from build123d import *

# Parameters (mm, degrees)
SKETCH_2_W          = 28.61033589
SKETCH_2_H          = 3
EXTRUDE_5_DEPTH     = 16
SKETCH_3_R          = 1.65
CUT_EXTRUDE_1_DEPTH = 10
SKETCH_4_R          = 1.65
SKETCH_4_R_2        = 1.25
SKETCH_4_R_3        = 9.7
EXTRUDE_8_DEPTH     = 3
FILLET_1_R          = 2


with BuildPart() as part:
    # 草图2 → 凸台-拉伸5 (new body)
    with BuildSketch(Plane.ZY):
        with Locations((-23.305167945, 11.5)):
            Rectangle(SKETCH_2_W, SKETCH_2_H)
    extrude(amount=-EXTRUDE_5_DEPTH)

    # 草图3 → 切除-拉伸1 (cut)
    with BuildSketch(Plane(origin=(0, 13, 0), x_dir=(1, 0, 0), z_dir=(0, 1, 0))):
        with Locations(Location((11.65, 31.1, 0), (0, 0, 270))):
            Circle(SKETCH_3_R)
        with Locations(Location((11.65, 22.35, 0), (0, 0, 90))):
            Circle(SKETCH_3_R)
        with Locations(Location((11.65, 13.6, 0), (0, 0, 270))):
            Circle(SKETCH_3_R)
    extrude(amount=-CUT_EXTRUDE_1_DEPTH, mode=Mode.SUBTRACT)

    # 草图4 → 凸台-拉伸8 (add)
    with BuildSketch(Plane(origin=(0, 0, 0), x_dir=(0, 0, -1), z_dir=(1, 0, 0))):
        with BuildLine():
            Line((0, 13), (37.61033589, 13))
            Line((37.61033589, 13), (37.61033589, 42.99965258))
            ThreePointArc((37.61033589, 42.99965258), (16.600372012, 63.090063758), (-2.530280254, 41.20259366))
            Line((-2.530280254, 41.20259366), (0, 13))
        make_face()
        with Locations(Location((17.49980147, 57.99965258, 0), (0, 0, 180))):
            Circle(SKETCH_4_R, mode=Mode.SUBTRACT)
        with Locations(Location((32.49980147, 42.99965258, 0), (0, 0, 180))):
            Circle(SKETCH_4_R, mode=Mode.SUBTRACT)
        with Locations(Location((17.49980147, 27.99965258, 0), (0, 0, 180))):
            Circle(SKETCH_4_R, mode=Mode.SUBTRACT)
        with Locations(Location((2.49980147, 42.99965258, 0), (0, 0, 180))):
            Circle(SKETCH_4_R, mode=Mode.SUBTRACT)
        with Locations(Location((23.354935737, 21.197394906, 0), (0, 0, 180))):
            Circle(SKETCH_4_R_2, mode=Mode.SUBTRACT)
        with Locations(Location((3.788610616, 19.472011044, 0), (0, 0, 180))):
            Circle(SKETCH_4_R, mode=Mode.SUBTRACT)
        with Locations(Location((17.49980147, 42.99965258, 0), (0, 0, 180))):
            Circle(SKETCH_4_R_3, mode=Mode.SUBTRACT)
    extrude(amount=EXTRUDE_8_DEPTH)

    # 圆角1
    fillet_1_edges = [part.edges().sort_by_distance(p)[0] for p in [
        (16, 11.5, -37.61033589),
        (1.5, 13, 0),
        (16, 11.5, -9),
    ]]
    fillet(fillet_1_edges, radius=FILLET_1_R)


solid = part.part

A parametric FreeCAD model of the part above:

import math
import FreeCAD as App
import Part
import Sketcher

V = App.Vector


def edges_at(feature, points):
    """Names of the edges that pass closest to the given points."""
    edges = feature.Shape.Edges
    near = lambda p: min(range(len(edges)), key=lambda i: edges[i].distToShape(Part.Vertex(*p))[0])
    return sorted({f"Edge{near(p) + 1}" for p in points})

doc = App.newDocument("Part")
body = doc.addObject("PartDesign::Body", "Body")

# Sketch on YZ plane
sketch1 = body.newObject("Sketcher::SketchObject", "Sketch")
sketch1.AttachmentSupport = (doc.getObject("YZ_Plane"), [""])
sketch1.MapMode = "FlatFace"
sketch1.addGeometry(Part.LineSegment(V(13, -37.610336, 0), V(10, -37.610336, 0)), False)
sketch1.addGeometry(Part.LineSegment(V(10, -37.610336, 0), V(10, -9, 0)), False)
sketch1.addGeometry(Part.LineSegment(V(10, -9, 0), V(13, -9, 0)), False)
sketch1.addGeometry(Part.LineSegment(V(13, -9, 0), V(13, -37.610336, 0)), False)
sketch1.addConstraint(Sketcher.Constraint("Coincident", 0, 2, 1, 1))
sketch1.addConstraint(Sketcher.Constraint("Coincident", 1, 2, 2, 1))
sketch1.addConstraint(Sketcher.Constraint("Coincident", 2, 2, 3, 1))
sketch1.addConstraint(Sketcher.Constraint("Coincident", 3, 2, 0, 1))
sketch1.addConstraint(Sketcher.Constraint("Horizontal", 0))
sketch1.addConstraint(Sketcher.Constraint("Vertical", 1))
sketch1.addConstraint(Sketcher.Constraint("Horizontal", 2))
sketch1.addConstraint(Sketcher.Constraint("Vertical", 3))
sketch1.addConstraint(Sketcher.Constraint("DistanceX", 0, 2, 0, 1, 3.0))
sketch1.addConstraint(Sketcher.Constraint("DistanceX", -1, 1, 0, 2, 10.0))
sketch1.addConstraint(Sketcher.Constraint("DistanceY", 1, 2, -1, 1, 9.0))
sketch1.addConstraint(Sketcher.Constraint("DistanceY", 1, 1, 1, 2, 28.610336))
pad1 = body.newObject("PartDesign::Pad", "Pad")
pad1.Profile = sketch1
pad1.Length = 16

# Sketch on XZ plane
sketch2 = body.newObject("Sketcher::SketchObject", "Sketch001")
sketch2.AttachmentSupport = (doc.getObject("XZ_Plane"), [""])
sketch2.MapMode = "FlatFace"
sketch2.AttachmentOffset = App.Placement(V(0, 0, -13), App.Rotation())
sketch2.addGeometry(Part.Circle(V(11.65, -31.1, 0), V(0, 0, 1), 1.65), False)
sketch2.addGeometry(Part.Circle(V(11.65, -22.35, 0), V(0, 0, 1), 1.65), False)
sketch2.addGeometry(Part.Circle(V(11.65, -13.6, 0), V(0, 0, 1), 1.65), False)
sketch2.addConstraint(Sketcher.Constraint("Equal", 0, 1))
sketch2.addConstraint(Sketcher.Constraint("Equal", 1, 2))
sketch2.addConstraint(Sketcher.Constraint("Vertical", 0, 3, 1, 3))
sketch2.addConstraint(Sketcher.Constraint("Vertical", 1, 3, 2, 3))
sketch2.addConstraint(Sketcher.Constraint("Diameter", 0, 3.3))
sketch2.addConstraint(Sketcher.Constraint("DistanceY", 0, 3, -1, 1, 31.1))
sketch2.addConstraint(Sketcher.Constraint("DistanceY", 2, 3, -1, 1, 13.6))
sketch2.addConstraint(Sketcher.Constraint("DistanceX", -1, 1, 0, 3, 11.65))
sketch2.addConstraint(Sketcher.Constraint("DistanceY", 1, 3, -1, 1, 22.35))
pocket1 = body.newObject("PartDesign::Pocket", "Pocket")
pocket1.Profile = sketch2
pocket1.Length = 10
pocket1.Reversed = True

# Sketch on YZ plane
sketch3 = body.newObject("Sketcher::SketchObject", "Sketch002")
sketch3.AttachmentSupport = (doc.getObject("YZ_Plane"), [""])
sketch3.MapMode = "FlatFace"
sketch3.addGeometry(Part.LineSegment(V(13, 0, 0), V(13, -37.610336, 0)), False)
sketch3.addGeometry(Part.LineSegment(V(13, -37.610336, 0), V(42.999653, -37.610336, 0)), False)
sketch3.addGeometry(Part.ArcOfCircle(Part.Circle(V(42.999653, -17.499801, 0), V(0, 0, 1), 20.110534), math.radians(-90), math.radians(95.126737)), False)
sketch3.addGeometry(Part.LineSegment(V(41.202594, 2.53028, 0), V(13, 0, 0)), False)
sketch3.addGeometry(Part.Circle(V(19.472011, -3.788611, 0), V(0, 0, 1), 1.65), False)
sketch3.addGeometry(Part.Circle(V(21.197395, -23.354936, 0), V(0, 0, 1), 1.25), False)
sketch3.addGeometry(Part.Circle(V(27.999653, -17.499801, 0), V(0, 0, 1), 1.65), False)
sketch3.addGeometry(Part.Circle(V(42.999653, -2.499801, 0), V(0, 0, 1), 1.65), False)
sketch3.addGeometry(Part.Circle(V(42.999653, -17.499801, 0), V(0, 0, 1), 9.7), False)
sketch3.addGeometry(Part.Circle(V(42.999653, -32.499801, 0), V(0, 0, 1), 1.65), False)
sketch3.addGeometry(Part.Circle(V(57.999653, -17.499801, 0), V(0, 0, 1), 1.65), False)
sketch3.addConstraint(Sketcher.Constraint("Coincident", 0, 2, 1, 1))
sketch3.addConstraint(Sketcher.Constraint("Tangent", 1, 2, 2, 1))
sketch3.addConstraint(Sketcher.Constraint("Tangent", 2, 2, 3, 1))
sketch3.addConstraint(Sketcher.Constraint("Coincident", 3, 2, 0, 1))
sketch3.addConstraint(Sketcher.Constraint("Vertical", 0))
sketch3.addConstraint(Sketcher.Constraint("Horizontal", 1))
sketch3.addConstraint(Sketcher.Constraint("Coincident", 8, 3, 2, 3))
sketch3.addConstraint(Sketcher.Constraint("Equal", 4, 6))
sketch3.addConstraint(Sketcher.Constraint("Equal", 6, 7))
sketch3.addConstraint(Sketcher.Constraint("Equal", 7, 9))
sketch3.addConstraint(Sketcher.Constraint("Equal", 9, 10))
sketch3.addConstraint(Sketcher.Constraint("PointOnObject", 3, 2, -1))
sketch3.addConstraint(Sketcher.Constraint("Horizontal", 2, 3, 6, 3))
sketch3.addConstraint(Sketcher.Constraint("Horizontal", 8, 3, 10, 3))
sketch3.addConstraint(Sketcher.Constraint("Vertical", 2, 3, 7, 3))
sketch3.addConstraint(Sketcher.Constraint("Vertical", 8, 3, 9, 3))
sketch3.addConstraint(Sketcher.Constraint("Diameter", 4, 3.3))
sketch3.addConstraint(Sketcher.Constraint("Diameter", 5, 2.5))
sketch3.addConstraint(Sketcher.Constraint("Diameter", 8, 19.4))
sketch3.addConstraint(Sketcher.Constraint("DistanceX", -1, 1, 0, 2, 13.0))
sketch3.addConstraint(Sketcher.Constraint("DistanceX", 6, 3, 2, 3, 15.0))
sketch3.addConstraint(Sketcher.Constraint("DistanceY", 2, 3, 7, 3, 15.0))
sketch3.addConstraint(Sketcher.Constraint("DistanceY", 9, 3, 2, 3, 15.0))
sketch3.addConstraint(Sketcher.Constraint("DistanceX", 2, 3, 10, 3, 15.0))
sketch3.addConstraint(Sketcher.Constraint("Radius", 2, 20.110534))
sketch3.addConstraint(Sketcher.Constraint("DistanceY", 2, 3, -1, 1, 17.499801))
sketch3.addConstraint(Sketcher.Constraint("DistanceY", 0, 2, 5, 3, 14.2554))
sketch3.addConstraint(Sketcher.Constraint("DistanceX", 1, 1, 1, 2, 29.999653))
sketch3.addConstraint(Sketcher.Constraint("DistanceX", -1, 1, 4, 3, 19.472011))
sketch3.addConstraint(Sketcher.Constraint("DistanceY", 4, 3, -1, 1, 3.788611))
sketch3.addConstraint(Sketcher.Constraint("DistanceX", -1, 1, 5, 3, 21.197395))
pad2 = body.newObject("PartDesign::Pad", "Pad001")
pad2.Profile = sketch3
pad2.Length = 3
doc.recompute()

fillet = body.newObject("PartDesign::Fillet", "Fillet")
fillet.Base = (pad2, edges_at(pad2, [(16, 11.5, -37.61), (1.5, 13, 0), (16, 11.5, -9)]))
fillet.Radius = 2

doc.recompute()
